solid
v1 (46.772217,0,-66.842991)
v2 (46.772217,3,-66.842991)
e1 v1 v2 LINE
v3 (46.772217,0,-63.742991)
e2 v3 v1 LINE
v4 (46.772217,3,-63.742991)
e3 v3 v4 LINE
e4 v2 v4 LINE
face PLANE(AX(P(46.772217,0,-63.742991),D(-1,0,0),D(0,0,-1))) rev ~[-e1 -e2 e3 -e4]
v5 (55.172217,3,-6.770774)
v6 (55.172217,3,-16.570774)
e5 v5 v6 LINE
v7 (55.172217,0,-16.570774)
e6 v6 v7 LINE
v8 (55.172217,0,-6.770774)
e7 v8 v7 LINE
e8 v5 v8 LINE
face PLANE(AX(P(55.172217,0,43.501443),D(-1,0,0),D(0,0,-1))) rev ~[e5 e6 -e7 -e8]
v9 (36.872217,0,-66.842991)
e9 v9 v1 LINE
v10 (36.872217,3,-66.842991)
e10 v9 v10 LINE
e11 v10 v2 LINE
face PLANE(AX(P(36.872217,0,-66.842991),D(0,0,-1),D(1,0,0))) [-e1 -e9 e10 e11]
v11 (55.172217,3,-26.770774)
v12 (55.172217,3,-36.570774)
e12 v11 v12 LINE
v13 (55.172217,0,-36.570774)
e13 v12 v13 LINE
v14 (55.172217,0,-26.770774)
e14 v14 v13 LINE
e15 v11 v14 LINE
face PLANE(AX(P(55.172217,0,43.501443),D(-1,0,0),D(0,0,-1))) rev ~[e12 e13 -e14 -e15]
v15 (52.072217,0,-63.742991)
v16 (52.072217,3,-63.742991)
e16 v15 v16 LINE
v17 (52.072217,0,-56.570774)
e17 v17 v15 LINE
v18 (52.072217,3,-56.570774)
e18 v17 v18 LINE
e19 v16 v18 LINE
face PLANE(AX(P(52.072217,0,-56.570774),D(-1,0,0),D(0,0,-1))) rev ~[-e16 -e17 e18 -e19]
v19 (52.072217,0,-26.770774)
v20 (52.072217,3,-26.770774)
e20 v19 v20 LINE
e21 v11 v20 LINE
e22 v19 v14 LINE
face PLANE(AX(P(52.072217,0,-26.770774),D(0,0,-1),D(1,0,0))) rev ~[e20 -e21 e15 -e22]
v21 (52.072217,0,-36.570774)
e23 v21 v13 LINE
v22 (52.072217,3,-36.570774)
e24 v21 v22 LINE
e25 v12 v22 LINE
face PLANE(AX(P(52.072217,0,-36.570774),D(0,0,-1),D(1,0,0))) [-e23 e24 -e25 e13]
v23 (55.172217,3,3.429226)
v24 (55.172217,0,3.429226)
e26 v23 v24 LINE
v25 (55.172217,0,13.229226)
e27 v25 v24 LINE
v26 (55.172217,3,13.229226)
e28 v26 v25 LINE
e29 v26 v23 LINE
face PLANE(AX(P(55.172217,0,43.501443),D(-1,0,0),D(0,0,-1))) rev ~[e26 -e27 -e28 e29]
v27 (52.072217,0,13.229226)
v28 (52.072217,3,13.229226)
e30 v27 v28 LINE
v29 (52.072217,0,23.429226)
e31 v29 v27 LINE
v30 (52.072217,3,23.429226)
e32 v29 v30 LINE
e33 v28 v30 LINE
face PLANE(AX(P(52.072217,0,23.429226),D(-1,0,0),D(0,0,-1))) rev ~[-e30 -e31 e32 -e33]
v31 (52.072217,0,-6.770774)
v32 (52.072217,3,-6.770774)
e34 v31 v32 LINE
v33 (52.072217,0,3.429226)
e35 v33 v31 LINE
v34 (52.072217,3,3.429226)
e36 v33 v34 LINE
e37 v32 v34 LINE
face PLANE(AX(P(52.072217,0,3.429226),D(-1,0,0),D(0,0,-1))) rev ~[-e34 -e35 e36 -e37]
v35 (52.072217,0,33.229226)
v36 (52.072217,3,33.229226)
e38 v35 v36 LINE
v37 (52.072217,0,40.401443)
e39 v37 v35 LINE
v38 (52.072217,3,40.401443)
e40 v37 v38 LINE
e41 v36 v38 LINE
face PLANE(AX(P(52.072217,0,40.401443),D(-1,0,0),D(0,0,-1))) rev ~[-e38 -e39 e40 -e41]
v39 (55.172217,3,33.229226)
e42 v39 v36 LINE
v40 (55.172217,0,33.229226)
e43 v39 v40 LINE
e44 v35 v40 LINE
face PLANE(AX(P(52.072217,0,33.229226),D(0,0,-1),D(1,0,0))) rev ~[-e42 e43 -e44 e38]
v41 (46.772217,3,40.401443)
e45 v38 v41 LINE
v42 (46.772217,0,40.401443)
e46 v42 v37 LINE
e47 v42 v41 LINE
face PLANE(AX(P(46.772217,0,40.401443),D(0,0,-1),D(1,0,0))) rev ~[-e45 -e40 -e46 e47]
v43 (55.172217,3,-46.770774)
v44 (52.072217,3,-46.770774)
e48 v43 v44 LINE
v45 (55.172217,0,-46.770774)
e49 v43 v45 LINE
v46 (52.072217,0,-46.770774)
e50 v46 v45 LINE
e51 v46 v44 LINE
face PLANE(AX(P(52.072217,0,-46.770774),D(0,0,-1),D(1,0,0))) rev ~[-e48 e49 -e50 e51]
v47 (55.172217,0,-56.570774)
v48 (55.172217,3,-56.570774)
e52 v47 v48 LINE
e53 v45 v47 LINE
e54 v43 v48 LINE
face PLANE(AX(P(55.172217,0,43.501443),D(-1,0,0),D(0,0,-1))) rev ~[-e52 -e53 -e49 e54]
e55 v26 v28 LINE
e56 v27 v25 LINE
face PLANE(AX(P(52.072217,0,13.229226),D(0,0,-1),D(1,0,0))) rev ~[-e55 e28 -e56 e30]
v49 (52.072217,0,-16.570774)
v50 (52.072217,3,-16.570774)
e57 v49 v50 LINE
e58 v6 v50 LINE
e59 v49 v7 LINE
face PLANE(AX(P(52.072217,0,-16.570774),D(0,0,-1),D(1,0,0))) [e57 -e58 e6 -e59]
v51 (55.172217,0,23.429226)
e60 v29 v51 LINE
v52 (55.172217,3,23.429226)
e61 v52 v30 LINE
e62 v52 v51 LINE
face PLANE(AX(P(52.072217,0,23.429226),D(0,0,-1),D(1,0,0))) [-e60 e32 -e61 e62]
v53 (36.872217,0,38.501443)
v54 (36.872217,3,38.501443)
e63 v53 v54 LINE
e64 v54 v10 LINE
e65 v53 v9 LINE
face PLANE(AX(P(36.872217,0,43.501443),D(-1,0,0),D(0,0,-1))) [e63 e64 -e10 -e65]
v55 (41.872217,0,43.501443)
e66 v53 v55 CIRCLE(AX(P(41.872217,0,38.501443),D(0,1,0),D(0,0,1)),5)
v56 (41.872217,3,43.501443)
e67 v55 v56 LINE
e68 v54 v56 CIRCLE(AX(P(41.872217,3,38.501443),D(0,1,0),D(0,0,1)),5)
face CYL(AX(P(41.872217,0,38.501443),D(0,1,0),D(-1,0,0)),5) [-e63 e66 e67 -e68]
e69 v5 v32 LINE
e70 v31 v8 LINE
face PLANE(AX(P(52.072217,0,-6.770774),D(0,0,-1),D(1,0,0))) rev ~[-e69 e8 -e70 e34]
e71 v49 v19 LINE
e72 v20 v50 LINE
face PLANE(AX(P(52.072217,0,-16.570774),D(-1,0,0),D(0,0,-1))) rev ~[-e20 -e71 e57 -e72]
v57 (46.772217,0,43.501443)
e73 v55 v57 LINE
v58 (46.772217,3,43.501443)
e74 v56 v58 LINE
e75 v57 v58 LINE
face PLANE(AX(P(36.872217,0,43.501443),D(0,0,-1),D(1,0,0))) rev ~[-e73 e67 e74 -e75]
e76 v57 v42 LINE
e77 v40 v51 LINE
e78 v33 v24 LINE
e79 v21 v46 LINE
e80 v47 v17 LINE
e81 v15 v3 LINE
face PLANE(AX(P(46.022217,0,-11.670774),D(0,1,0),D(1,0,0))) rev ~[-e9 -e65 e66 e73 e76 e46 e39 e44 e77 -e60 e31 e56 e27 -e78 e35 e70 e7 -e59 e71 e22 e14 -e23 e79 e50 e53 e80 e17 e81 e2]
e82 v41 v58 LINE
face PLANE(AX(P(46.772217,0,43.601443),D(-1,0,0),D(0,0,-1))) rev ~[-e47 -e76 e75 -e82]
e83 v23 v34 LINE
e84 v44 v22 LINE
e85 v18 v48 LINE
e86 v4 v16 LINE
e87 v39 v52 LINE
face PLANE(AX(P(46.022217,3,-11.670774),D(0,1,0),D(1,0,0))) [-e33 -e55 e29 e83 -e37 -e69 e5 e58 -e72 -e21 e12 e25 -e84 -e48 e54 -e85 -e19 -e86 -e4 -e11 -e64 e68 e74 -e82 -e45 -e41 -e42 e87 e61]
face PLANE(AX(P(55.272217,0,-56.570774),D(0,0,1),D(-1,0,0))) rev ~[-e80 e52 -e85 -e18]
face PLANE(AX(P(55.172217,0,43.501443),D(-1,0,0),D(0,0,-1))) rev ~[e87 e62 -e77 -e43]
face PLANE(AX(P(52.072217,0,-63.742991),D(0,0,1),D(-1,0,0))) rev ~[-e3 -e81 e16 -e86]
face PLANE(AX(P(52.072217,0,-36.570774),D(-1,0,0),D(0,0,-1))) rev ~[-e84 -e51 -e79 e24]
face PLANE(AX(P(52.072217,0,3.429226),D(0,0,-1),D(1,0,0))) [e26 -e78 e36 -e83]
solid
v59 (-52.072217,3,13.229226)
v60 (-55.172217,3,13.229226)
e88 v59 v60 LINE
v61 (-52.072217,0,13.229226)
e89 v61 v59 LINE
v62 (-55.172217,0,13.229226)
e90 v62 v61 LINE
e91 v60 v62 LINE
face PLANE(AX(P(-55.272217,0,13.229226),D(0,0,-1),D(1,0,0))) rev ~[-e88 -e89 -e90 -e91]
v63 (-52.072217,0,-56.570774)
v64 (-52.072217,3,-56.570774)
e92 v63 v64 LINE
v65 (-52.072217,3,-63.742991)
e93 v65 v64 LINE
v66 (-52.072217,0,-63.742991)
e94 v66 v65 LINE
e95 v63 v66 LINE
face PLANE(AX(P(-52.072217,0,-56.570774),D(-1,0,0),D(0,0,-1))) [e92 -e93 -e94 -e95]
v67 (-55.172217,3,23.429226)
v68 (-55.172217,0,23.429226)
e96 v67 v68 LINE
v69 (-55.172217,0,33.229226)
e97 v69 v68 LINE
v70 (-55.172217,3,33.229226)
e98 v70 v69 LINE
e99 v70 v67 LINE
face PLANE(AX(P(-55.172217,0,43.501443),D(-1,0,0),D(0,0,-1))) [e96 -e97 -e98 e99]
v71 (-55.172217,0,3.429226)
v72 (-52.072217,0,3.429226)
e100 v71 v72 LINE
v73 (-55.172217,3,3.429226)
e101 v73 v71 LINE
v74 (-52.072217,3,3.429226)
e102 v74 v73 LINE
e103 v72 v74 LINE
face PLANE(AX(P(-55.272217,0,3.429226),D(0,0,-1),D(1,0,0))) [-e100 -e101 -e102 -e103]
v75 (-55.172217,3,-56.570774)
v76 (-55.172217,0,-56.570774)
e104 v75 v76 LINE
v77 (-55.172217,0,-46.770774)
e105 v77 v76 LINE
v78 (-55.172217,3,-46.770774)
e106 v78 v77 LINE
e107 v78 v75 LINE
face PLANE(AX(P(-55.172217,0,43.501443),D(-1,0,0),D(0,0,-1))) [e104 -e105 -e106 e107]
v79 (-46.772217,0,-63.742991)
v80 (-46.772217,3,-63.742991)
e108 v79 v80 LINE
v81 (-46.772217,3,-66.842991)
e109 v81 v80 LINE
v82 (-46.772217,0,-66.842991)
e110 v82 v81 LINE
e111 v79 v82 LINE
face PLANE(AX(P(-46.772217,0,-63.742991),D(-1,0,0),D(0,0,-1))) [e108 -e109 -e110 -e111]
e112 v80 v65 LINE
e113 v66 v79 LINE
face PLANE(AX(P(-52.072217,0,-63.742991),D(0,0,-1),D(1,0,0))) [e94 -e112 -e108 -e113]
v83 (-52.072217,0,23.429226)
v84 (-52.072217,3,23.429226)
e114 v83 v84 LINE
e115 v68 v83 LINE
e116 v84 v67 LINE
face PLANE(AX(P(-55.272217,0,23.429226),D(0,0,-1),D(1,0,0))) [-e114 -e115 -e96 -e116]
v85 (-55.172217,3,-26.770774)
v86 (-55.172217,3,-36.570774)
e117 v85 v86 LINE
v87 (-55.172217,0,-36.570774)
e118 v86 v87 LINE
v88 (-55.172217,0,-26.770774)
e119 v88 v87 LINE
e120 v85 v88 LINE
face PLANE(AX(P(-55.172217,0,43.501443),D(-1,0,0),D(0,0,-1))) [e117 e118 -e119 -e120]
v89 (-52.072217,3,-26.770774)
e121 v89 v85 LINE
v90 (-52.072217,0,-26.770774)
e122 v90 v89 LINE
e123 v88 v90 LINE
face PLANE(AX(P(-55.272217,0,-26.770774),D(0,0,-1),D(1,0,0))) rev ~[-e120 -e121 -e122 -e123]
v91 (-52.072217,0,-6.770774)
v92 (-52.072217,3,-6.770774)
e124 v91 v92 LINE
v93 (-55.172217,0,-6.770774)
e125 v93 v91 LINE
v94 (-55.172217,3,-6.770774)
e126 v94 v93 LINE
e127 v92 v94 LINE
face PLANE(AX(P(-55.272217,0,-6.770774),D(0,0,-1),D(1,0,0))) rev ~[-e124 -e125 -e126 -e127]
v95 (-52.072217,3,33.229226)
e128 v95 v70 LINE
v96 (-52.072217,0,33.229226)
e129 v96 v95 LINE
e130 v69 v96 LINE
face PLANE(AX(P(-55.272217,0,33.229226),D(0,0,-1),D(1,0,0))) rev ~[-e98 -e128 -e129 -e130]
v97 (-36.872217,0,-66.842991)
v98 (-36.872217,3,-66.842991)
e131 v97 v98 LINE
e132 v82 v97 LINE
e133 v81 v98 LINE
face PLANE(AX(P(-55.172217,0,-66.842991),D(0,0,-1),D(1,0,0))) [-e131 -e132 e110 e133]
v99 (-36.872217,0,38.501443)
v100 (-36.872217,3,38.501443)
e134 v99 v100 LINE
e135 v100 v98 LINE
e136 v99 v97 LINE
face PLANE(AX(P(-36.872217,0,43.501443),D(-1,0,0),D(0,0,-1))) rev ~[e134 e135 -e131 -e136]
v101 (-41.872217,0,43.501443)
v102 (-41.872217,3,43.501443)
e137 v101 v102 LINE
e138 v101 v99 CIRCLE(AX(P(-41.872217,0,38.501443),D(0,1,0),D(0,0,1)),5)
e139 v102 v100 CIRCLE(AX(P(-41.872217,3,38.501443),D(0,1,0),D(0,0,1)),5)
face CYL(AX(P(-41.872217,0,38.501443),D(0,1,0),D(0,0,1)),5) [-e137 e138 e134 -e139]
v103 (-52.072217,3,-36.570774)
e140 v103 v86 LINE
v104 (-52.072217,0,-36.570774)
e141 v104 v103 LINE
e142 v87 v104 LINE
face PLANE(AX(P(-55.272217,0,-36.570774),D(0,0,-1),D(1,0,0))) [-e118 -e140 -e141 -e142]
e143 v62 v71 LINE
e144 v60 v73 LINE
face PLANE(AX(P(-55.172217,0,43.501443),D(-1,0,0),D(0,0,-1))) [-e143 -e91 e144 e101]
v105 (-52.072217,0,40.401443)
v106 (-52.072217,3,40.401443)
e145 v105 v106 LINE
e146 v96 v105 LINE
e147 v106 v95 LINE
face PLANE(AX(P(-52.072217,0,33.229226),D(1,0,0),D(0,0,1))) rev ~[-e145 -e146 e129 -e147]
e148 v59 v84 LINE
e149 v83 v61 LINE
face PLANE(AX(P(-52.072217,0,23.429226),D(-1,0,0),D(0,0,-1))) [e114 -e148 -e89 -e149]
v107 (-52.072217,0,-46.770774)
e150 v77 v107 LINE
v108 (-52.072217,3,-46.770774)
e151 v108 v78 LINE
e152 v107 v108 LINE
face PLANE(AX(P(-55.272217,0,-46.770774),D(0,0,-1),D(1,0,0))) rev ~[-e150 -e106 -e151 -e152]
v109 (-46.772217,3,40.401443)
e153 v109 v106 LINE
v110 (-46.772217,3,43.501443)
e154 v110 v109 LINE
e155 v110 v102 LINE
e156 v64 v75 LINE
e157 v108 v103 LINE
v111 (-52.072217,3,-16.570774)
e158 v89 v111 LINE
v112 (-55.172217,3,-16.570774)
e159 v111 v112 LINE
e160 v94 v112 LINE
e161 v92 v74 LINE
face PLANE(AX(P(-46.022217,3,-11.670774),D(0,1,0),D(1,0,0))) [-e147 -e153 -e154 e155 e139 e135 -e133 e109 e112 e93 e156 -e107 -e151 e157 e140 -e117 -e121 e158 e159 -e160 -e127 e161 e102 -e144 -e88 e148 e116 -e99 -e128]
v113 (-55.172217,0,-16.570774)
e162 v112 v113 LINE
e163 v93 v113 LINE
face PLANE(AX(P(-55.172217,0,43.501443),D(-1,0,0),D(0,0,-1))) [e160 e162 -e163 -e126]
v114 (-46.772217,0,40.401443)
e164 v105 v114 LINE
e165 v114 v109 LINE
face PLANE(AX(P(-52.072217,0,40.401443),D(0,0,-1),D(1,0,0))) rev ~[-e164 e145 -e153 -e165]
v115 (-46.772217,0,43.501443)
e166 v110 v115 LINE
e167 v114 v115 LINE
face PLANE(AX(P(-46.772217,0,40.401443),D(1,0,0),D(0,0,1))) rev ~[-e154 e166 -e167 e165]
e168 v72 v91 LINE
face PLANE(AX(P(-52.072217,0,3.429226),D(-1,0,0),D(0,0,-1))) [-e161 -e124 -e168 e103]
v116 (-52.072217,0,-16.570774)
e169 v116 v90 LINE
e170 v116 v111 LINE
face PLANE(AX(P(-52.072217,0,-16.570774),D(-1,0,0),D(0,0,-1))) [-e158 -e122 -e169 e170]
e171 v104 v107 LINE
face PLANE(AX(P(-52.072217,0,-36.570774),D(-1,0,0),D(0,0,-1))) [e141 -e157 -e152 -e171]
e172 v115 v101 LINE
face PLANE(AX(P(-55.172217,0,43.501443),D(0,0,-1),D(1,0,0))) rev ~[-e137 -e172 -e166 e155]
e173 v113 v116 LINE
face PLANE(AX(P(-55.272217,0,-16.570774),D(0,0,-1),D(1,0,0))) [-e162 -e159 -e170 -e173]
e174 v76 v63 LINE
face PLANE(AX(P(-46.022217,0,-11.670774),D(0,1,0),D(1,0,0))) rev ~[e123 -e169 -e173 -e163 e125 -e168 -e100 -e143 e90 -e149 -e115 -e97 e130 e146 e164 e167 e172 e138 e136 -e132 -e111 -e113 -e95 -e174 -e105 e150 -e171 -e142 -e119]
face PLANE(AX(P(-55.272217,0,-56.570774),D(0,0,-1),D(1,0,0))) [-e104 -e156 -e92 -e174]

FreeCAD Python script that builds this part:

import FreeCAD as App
import Part
import Sketcher

V = App.Vector


def edges_at(feature, points):
    """Names of the edges that pass closest to the given points."""
    edges = feature.Shape.Edges
    near = lambda p: min(range(len(edges)), key=lambda i: edges[i].distToShape(Part.Vertex(*p))[0])
    return sorted({f"Edge{near(p) + 1}" for p in points})


def add_polygon(sketch, points):
    """Adds a closed chain of lines whose ends are joined by coincident constraints."""
    first, n = sketch.GeometryCount, len(points)
    for a, b in zip(points, points[1:] + points[:1]):
        sketch.addGeometry(Part.LineSegment(App.Vector(*a, 0), App.Vector(*b, 0)), False)
    for i in range(n):
        sketch.addConstraint(Sketcher.Constraint("Coincident", first + i, 2, first + (i + 1) % n, 1))

doc = App.newDocument("Part")
body = doc.addObject("PartDesign::Body", "Body")

# Sketch on XZ plane
sketch1 = doc.addObject("Sketcher::SketchObject", "Sketch")
body.addObject(sketch1)
sketch1.AttachmentSupport = (doc.XZ_Plane, [""])
sketch1.MapMode = "FlatFace"
add_polygon(sketch1, [(-55, -67), (-55, 44), (-37, 44), (-37, -67)])  # lines 0-3
sketch1.addConstraint([
    Sketcher.Constraint("Vertical", 0),
    Sketcher.Constraint("Horizontal", 1),
    Sketcher.Constraint("Vertical", 2),
    Sketcher.Constraint("Horizontal", 3),
    Sketcher.Constraint("DistanceX", 1, 1, 1, 2, 18.3),
    Sketcher.Constraint("DistanceY", 0, 1, 0, 2, 110.344434),
    Sketcher.Constraint("DistanceY", 2, 2, -1, 1, 66.842991),
    Sketcher.Constraint("DistanceX", 0, 2, -1, 1, 55.172217),
])
pad1 = doc.addObject("PartDesign::Pad", "Pad")
body.addObject(pad1)
pad1.Profile = sketch1
pad1.Length = 3
pad1.Reversed = True
doc.recompute()

fillet = doc.addObject("PartDesign::Fillet", "Fillet")
body.addObject(fillet)
fillet.Base = (pad1, edges_at(pad1, [(-36.872, 1.5, 43.501)]))
fillet.Radius = 5

# Sketch on XZ plane
sketch2 = doc.addObject("Sketcher::SketchObject", "Sketch001")
body.addObject(sketch2)
sketch2.AttachmentSupport = (doc.XZ_Plane, [""])
sketch2.MapMode = "FlatFace"
add_polygon(sketch2, [(-46.8, 40.4), (-52.1, 40.4), (-52.1, 33.2), (-55.3, 33.2), (-55.3, 43.6), (-46.8, 43.6)])  # lines 0-5
add_polygon(sketch2, [(-46.8, -63.7), (-46.8, -66.9), (-55.3, -66.9), (-55.3, -56.6), (-52.1, -56.6), (-52.1, -63.7)])  # lines 6-11
add_polygon(sketch2, [(-55.3, 13.2), (-55.3, 23.4), (-52.1, 23.4), (-52.1, 13.2)])  # lines 12-15
add_polygon(sketch2, [(-55.3, -6.8), (-55.3, 3.4), (-52.1, 3.4), (-52.1, -6.8)])  # lines 16-19
add_polygon(sketch2, [(-55.3, -26.8), (-55.3, -16.6), (-52.1, -16.6), (-52.1, -26.8)])  # lines 20-23
add_polygon(sketch2, [(-55.3, -46.8), (-55.3, -36.6), (-52.1, -36.6), (-52.1, -46.8)])  # lines 24-27
sketch2.addConstraint([
    Sketcher.Constraint("Horizontal", 0),
    Sketcher.Constraint("Vertical", 1),
    Sketcher.Constraint("Horizontal", 2),
    Sketcher.Constraint("Vertical", 3),
    Sketcher.Constraint("Horizontal", 4),
    Sketcher.Constraint("Vertical", 5),
    Sketcher.Constraint("Vertical", 6),
    Sketcher.Constraint("Horizontal", 7),
    Sketcher.Constraint("Vertical", 8),
    Sketcher.Constraint("Horizontal", 9),
    Sketcher.Constraint("Vertical", 10),
    Sketcher.Constraint("Horizontal", 11),
    Sketcher.Constraint("Vertical", 12),
    Sketcher.Constraint("Horizontal", 13),
    Sketcher.Constraint("Vertical", 14),
    Sketcher.Constraint("Horizontal", 15),
    Sketcher.Constraint("Vertical", 16),
    Sketcher.Constraint("Horizontal", 17),
    Sketcher.Constraint("Vertical", 18),
    Sketcher.Constraint("Horizontal", 19),
    Sketcher.Constraint("Vertical", 20),
    Sketcher.Constraint("Horizontal", 21),
    Sketcher.Constraint("Vertical", 22),
    Sketcher.Constraint("Horizontal", 23),
    Sketcher.Constraint("Vertical", 24),
    Sketcher.Constraint("Horizontal", 25),
    Sketcher.Constraint("Vertical", 26),
    Sketcher.Constraint("Horizontal", 27),
    Sketcher.Constraint("Vertical", 5, 2, 6, 2),
    Sketcher.Constraint("Vertical", 3, 2, 7, 2),
    Sketcher.Constraint("Vertical", 1, 2, 9, 2),
    Sketcher.Constraint("Vertical", 8, 2, 12, 2),
    Sketcher.Constraint("Vertical", 10, 2, 13, 2),
    Sketcher.Constraint("Vertical", 15, 2, 16, 2),
    Sketcher.Constraint("Vertical", 14, 2, 17, 2),
    Sketcher.Constraint("Vertical", 19, 2, 20, 2),
    Sketcher.Constraint("Vertical", 18, 2, 21, 2),
    Sketcher.Constraint("Vertical", 23, 2, 24, 2),
    Sketcher.Constraint("Vertical", 22, 2, 25, 2),
    Sketcher.Constraint("Equal", 27, 5),
    Sketcher.Constraint("Equal", 5, 6),
    Sketcher.Constraint("Equal", 3, 8),
    Sketcher.Constraint("Equal", 14, 16),
    Sketcher.Constraint("Equal", 18, 20),
    Sketcher.Constraint("Equal", 22, 24),
    Sketcher.Constraint("DistanceX", 0, 2, 0, 1, 5.3),
    Sketcher.Constraint("DistanceX", 2, 2, 2, 1, 3.2),
    Sketcher.Constraint("DistanceY", 12, 1, 12, 2, 10.2),
    Sketcher.Constraint("DistanceY", 14, 2, 1, 2, 20.0),
    Sketcher.Constraint("DistanceY", 16, 2, 12, 2, 20.0),
    Sketcher.Constraint("DistanceY", 20, 2, 16, 2, 20.0),
    Sketcher.Constraint("DistanceY", 8, 2, 24, 2, 20.0),
    Sketcher.Constraint("DistanceY", 24, 2, 20, 2, 20.0),
    Sketcher.Constraint("DistanceY", 1, 2, 1, 1, 7.172217),
    Sketcher.Constraint("DistanceY", 6, 2, -1, 1, 66.942991),
    Sketcher.Constraint("DistanceX", 0, 2, -1, 1, 52.072217),
])
pocket1 = doc.addObject("PartDesign::Pocket", "Pocket")
body.addObject(pocket1)
pocket1.Profile = sketch2
pocket1.Type = "ThroughAll"
body2 = doc.addObject("PartDesign::Body", "Body001")

# Sketch on XZ plane
sketch3 = doc.addObject("Sketcher::SketchObject", "Sketch002")
body2.addObject(sketch3)
sketch3.AttachmentSupport = (doc.getObject("XZ_Plane001"), [""])
sketch3.MapMode = "FlatFace"
add_polygon(sketch3, [(37, -67), (37, 44), (55, 44), (55, -67)])  # lines 0-3
sketch3.addConstraint([
    Sketcher.Constraint("Vertical", 0),
    Sketcher.Constraint("Horizontal", 1),
    Sketcher.Constraint("Vertical", 2),
    Sketcher.Constraint("Horizontal", 3),
    Sketcher.Constraint("DistanceX", 1, 1, 1, 2, 18.3),
    Sketcher.Constraint("DistanceY", 0, 1, 0, 2, 110.344434),
    Sketcher.Constraint("DistanceY", 2, 2, -1, 1, 66.842991),
    Sketcher.Constraint("DistanceX", -1, 1, 0, 2, 36.872217),
])
pad2 = doc.addObject("PartDesign::Pad", "Pad001")
body2.addObject(pad2)
pad2.Profile = sketch3
pad2.Length = 3
pad2.Reversed = True
doc.recompute()

fillet2 = doc.addObject("PartDesign::Fillet", "Fillet001")
body2.addObject(fillet2)
fillet2.Base = (pad2, edges_at(pad2, [(36.872, 1.5, 43.501)]))
fillet2.Radius = 5

# Sketch on XZ plane
sketch4 = doc.addObject("Sketcher::SketchObject", "Sketch003")
body2.addObject(sketch4)
sketch4.AttachmentSupport = (doc.getObject("XZ_Plane001"), [""])
sketch4.MapMode = "FlatFace"
add_polygon(sketch4, [(52.1, -46.8), (52.1, -36.6), (55.3, -36.6), (55.3, -46.8)])  # lines 0-3
add_polygon(sketch4, [(52.1, -26.8), (52.1, -16.6), (55.3, -16.6), (55.3, -26.8)])  # lines 4-7
add_polygon(sketch4, [(52.1, 13.2), (52.1, 23.4), (55.3, 23.4), (55.3, 13.2)])  # lines 8-11
add_polygon(sketch4, [(52.1, -6.8), (52.1, 3.4), (55.3, 3.4), (55.3, -6.8)])  # lines 12-15
add_polygon(sketch4, [(52.1, 33.2), (52.1, 40.4), (46.8, 40.4), (46.8, 43.6), (55.3, 43.6), (55.3, 33.2)])  # lines 16-21
add_polygon(sketch4, [(46.8, -63.7), (52.1, -63.7), (52.1, -56.6), (55.3, -56.6), (55.3, -66.9), (46.8, -66.9)])  # lines 22-27
sketch4.addConstraint([
    Sketcher.Constraint("Vertical", 0),
    Sketcher.Constraint("Horizontal", 1),
    Sketcher.Constraint("Vertical", 2),
    Sketcher.Constraint("Horizontal", 3),
    Sketcher.Constraint("Vertical", 4),
    Sketcher.Constraint("Horizontal", 5),
    Sketcher.Constraint("Vertical", 6),
    Sketcher.Constraint("Horizontal", 7),
    Sketcher.Constraint("Vertical", 8),
    Sketcher.Constraint("Horizontal", 9),
    Sketcher.Constraint("Vertical", 10),
    Sketcher.Constraint("Horizontal", 11),
    Sketcher.Constraint("Vertical", 12),
    Sketcher.Constraint("Horizontal", 13),
    Sketcher.Constraint("Vertical", 14),
    Sketcher.Constraint("Horizontal", 15),
    Sketcher.Constraint("Vertical", 16),
    Sketcher.Constraint("Horizontal", 17),
    Sketcher.Constraint("Vertical", 18),
    Sketcher.Constraint("Horizontal", 19),
    Sketcher.Constraint("Vertical", 20),
    Sketcher.Constraint("Horizontal", 21),
    Sketcher.Constraint("Horizontal", 22),
    Sketcher.Constraint("Vertical", 23),
    Sketcher.Constraint("Horizontal", 24),
    Sketcher.Constraint("Vertical", 25),
    Sketcher.Constraint("Horizontal", 26),
    Sketcher.Constraint("Vertical", 27),
    Sketcher.Constraint("Vertical", 3, 2, 4, 2),
    Sketcher.Constraint("Vertical", 2, 2, 5, 2),
    Sketcher.Constraint("Vertical", 7, 2, 8, 2),
    Sketcher.Constraint("Vertical", 6, 2, 9, 2),
    Sketcher.Constraint("Vertical", 11, 2, 12, 2),
    Sketcher.Constraint("Vertical", 10, 2, 13, 2),
    Sketcher.Constraint("Vertical", 15, 2, 16, 2),
    Sketcher.Constraint("Vertical", 14, 2, 19, 2),
    Sketcher.Constraint("Vertical", 21, 2, 22, 2),
    Sketcher.Constraint("Vertical", 20, 2, 24, 2),
    Sketcher.Constraint("Vertical", 18, 2, 26, 2),
    Sketcher.Constraint("Equal", 2, 4),
    Sketcher.Constraint("Equal", 6, 8),
    Sketcher.Constraint("Equal", 10, 12),
    Sketcher.Constraint("Equal", 24, 18),
    Sketcher.Constraint("Equal", 16, 23),
    Sketcher.Constraint("Equal", 20, 25),
    Sketcher.Constraint("DistanceX", 1, 1, 1, 2, 3.2),
    Sketcher.Constraint("DistanceX", 17, 2, 17, 1, 5.3),
    Sketcher.Constraint("DistanceY", 0, 1, 0, 2, 10.2),
    Sketcher.Constraint("DistanceY", 0, 2, 4, 2, 20.0),
    Sketcher.Constraint("DistanceY", 4, 2, 8, 2, 40.0),
    Sketcher.Constraint("DistanceY", 4, 2, 12, 2, 20.0),
    Sketcher.Constraint("DistanceY", 23, 2, 0, 2, 20.0),
    Sketcher.Constraint("DistanceY", 9, 2, 20, 2, 9.8),
    Sketcher.Constraint("DistanceY", 16, 1, 16, 2, 7.172217),
    Sketcher.Constraint("DistanceY", 22, 2, -1, 1, 63.742991),
    Sketcher.Constraint("DistanceX", -1, 1, 0, 2, 52.072217),
])
pocket2 = doc.addObject("PartDesign::Pocket", "Pocket001")
body2.addObject(pocket2)
pocket2.Profile = sketch4
pocket2.Type = "ThroughAll"

doc.recompute()
